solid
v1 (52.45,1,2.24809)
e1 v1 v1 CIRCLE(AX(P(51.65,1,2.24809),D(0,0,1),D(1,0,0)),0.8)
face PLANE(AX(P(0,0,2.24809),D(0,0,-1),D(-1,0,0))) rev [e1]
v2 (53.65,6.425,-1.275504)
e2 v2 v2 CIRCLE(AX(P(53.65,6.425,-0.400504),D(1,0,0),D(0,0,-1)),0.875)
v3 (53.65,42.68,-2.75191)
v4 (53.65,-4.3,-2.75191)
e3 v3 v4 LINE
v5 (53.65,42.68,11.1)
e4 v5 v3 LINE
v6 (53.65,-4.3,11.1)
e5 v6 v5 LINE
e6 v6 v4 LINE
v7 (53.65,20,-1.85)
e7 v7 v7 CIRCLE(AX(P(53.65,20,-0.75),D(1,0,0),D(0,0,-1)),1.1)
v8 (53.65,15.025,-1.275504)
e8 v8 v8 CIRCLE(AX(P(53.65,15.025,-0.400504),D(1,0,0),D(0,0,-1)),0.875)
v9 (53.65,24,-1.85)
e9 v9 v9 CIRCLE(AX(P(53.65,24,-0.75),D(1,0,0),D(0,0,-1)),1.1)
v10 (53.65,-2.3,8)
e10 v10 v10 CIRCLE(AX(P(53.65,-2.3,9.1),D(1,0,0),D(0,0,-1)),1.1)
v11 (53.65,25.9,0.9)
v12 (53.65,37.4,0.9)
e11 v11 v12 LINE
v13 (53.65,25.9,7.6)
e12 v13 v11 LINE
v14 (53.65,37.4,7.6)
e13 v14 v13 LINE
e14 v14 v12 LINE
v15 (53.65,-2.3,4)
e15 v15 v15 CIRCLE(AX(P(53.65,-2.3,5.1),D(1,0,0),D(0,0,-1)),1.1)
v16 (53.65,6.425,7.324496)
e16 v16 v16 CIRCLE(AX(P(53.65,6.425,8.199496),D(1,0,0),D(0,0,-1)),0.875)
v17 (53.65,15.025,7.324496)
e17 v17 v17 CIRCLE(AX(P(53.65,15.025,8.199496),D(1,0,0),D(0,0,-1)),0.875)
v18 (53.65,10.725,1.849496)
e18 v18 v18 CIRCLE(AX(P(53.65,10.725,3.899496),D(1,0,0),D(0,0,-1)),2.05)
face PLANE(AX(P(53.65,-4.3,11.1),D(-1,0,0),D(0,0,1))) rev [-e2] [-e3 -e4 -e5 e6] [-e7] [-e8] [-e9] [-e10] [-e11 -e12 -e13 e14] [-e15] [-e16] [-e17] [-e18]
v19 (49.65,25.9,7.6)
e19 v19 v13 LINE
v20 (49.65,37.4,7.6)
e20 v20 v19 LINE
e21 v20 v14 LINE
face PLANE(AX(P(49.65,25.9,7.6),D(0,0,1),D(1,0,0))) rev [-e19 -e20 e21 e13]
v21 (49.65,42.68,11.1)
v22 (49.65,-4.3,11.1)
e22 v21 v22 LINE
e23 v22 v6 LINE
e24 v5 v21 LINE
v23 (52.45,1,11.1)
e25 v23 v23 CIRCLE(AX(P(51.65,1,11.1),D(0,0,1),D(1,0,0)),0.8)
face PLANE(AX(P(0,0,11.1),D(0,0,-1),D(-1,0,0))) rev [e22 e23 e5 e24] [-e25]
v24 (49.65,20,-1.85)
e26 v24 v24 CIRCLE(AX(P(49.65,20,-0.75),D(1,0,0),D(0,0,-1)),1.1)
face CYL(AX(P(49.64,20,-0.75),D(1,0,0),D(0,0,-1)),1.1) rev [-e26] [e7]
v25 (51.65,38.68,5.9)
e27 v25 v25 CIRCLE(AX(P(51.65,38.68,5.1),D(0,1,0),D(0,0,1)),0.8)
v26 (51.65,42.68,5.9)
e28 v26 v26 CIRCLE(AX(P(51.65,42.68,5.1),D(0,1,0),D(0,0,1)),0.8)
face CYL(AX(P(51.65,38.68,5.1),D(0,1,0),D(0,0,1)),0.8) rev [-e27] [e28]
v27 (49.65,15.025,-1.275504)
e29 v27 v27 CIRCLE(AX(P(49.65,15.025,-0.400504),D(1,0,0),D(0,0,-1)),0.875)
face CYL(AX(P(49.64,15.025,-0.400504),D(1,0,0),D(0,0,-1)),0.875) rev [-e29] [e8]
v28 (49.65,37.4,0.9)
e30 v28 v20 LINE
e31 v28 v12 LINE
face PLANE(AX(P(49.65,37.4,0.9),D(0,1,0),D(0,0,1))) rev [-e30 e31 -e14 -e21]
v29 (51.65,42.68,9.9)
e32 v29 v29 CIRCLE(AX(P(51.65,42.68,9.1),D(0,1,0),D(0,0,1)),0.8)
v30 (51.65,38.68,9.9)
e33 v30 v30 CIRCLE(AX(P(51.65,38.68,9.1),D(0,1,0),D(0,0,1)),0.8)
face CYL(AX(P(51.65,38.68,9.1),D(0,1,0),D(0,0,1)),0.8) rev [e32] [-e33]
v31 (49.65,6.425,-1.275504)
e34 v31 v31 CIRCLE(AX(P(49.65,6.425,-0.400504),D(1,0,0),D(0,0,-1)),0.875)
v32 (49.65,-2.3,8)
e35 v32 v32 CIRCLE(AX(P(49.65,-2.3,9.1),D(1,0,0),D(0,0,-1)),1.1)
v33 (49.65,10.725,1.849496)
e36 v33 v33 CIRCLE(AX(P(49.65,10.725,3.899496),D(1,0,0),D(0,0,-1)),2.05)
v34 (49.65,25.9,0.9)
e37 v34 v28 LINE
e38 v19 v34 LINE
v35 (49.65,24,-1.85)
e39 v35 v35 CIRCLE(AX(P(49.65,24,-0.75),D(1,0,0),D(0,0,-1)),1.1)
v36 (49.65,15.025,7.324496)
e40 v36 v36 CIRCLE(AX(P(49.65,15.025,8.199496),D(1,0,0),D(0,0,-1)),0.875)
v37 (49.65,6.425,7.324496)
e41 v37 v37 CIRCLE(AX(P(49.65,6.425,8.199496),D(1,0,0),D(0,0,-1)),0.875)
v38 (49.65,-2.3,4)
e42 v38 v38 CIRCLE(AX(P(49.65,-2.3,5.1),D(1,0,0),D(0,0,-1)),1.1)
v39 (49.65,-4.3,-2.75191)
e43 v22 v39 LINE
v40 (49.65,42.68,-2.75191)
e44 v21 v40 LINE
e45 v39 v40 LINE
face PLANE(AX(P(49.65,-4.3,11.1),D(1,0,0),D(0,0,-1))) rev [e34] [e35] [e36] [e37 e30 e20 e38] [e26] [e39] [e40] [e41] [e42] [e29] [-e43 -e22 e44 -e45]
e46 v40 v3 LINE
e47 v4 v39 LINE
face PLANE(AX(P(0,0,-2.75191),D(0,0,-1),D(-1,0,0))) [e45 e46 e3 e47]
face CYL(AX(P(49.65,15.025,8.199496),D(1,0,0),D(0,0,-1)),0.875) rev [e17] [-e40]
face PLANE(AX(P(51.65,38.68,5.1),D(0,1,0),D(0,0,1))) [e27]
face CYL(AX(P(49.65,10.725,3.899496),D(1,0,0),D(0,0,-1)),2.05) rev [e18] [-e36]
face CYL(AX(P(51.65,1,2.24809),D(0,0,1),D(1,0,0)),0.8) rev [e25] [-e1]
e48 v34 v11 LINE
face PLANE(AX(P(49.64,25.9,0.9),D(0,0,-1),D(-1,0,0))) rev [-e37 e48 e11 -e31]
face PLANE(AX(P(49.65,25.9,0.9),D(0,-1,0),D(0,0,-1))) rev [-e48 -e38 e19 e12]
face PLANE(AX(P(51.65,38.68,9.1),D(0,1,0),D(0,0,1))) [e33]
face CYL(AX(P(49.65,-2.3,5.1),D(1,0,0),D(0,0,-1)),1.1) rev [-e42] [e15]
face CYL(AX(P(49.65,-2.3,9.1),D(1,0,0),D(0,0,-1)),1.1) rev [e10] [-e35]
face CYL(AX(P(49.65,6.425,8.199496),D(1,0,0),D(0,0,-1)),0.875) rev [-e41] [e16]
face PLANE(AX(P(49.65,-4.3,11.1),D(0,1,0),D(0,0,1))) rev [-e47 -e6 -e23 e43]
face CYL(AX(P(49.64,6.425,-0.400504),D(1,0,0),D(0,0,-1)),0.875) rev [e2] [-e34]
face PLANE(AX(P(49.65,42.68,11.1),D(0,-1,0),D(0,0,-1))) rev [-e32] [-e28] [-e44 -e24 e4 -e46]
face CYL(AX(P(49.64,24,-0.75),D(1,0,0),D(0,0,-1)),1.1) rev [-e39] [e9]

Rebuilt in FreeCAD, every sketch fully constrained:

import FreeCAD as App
import Part
import Sketcher


def add_polygon(sketch, points):
    """Adds a closed chain of lines whose ends are joined by coincident constraints."""
    first, n = sketch.GeometryCount, len(points)
    for a, b in zip(points, points[1:] + points[:1]):
        sketch.addGeometry(Part.LineSegment(App.Vector(*a, 0), App.Vector(*b, 0)), False)
    for i in range(n):
        sketch.addConstraint(Sketcher.Constraint("Coincident", first + i, 2, first + (i + 1) % n, 1))

doc = App.newDocument("Part")
body = doc.addObject("PartDesign::Body", "Body")

sketch1 = doc.addObject("Sketcher::SketchObject", "Sketch")
body.addObject(sketch1)
sketch1.AttachmentSupport = (doc.XY_Plane, [""])
sketch1.MapMode = "FlatFace"
sketch1.AttachmentOffset = App.Placement(App.Vector(0, 0, 2.24809), App.Rotation())
add_polygon(sketch1, [(49.6, 42.7), (49.6, -4.3), (53.6, -4.3), (53.6, 42.7)])
sketch1.addConstraint(Sketcher.Constraint("Vertical", 0))
sketch1.addConstraint(Sketcher.Constraint("Horizontal", 1))
sketch1.addConstraint(Sketcher.Constraint("Vertical", 2))
sketch1.addConstraint(Sketcher.Constraint("Horizontal", 3))
sketch1.addConstraint(Sketcher.Constraint("DistanceX", 1, 1, 1, 2, 4.0))
sketch1.addConstraint(Sketcher.Constraint("DistanceY", 0, 2, 0, 1, 46.98))
sketch1.addConstraint(Sketcher.Constraint("DistanceY", 0, 2, -1, 1, 4.3))
sketch1.addConstraint(Sketcher.Constraint("DistanceX", -1, 1, 0, 2, 49.65))
pad1 = doc.addObject("PartDesign::Pad", "Pad")
body.addObject(pad1)
pad1.Profile = sketch1
pad1.Length = 8.85191

sketch2 = doc.addObject("Sketcher::SketchObject", "Sketch001")
body.addObject(sketch2)
sketch2.AttachmentSupport = (doc.XY_Plane, [""])
sketch2.MapMode = "FlatFace"
sketch2.AttachmentOffset = App.Placement(App.Vector(0, 0, 11.1), App.Rotation())
sketch2.addGeometry(Part.Circle(App.Vector(51.6, 1, 0), App.Vector(0, 0, 1), 0.8), False)
sketch2.addConstraint(Sketcher.Constraint("Diameter", 0, 1.6))
sketch2.addConstraint(Sketcher.Constraint("DistanceY", -1, 1, 0, 3, 1.0))
sketch2.addConstraint(Sketcher.Constraint("DistanceX", -1, 1, 0, 3, 51.65))
pocket1 = doc.addObject("PartDesign::Pocket", "Pocket")
body.addObject(pocket1)
pocket1.Profile = sketch2
pocket1.Type = "ThroughAll"

sketch3 = doc.addObject("Sketcher::SketchObject", "Sketch002")
body.addObject(sketch3)
sketch3.AttachmentSupport = (doc.YZ_Plane, [""])
sketch3.MapMode = "FlatFace"
sketch3.AttachmentOffset = App.Placement(App.Vector(0, 0, 53.65), App.Rotation())
sketch3.addGeometry(Part.Circle(App.Vector(10.7, 3.9, 0), App.Vector(0, 0, 1), 2), False)
sketch3.addConstraint(Sketcher.Constraint("Diameter", 0, 4.1))
sketch3.addConstraint(Sketcher.Constraint("DistanceX", -1, 1, 0, 3, 10.725))
sketch3.addConstraint(Sketcher.Constraint("DistanceY", -1, 1, 0, 3, 3.899496))
pocket2 = doc.addObject("PartDesign::Pocket", "Pocket001")
body.addObject(pocket2)
pocket2.Profile = sketch3
pocket2.Length = 4

sketch4 = doc.addObject("Sketcher::SketchObject", "Sketch003")
body.addObject(sketch4)
sketch4.AttachmentSupport = (doc.YZ_Plane, [""])
sketch4.MapMode = "FlatFace"
sketch4.AttachmentOffset = App.Placement(App.Vector(0, 0, 53.65), App.Rotation())
sketch4.addGeometry(Part.Circle(App.Vector(6.4, 8.2, 0), App.Vector(0, 0, 1), 0.9), False)
sketch4.addGeometry(Part.Circle(App.Vector(15, 8.2, 0), App.Vector(0, 0, 1), 0.9), False)
sketch4.addConstraint(Sketcher.Constraint("Equal", 0, 1))
sketch4.addConstraint(Sketcher.Constraint("Horizontal", 0, 3, 1, 3))
sketch4.addConstraint(Sketcher.Constraint("Diameter", 0, 1.75))
sketch4.addConstraint(Sketcher.Constraint("DistanceX", 0, 3, 1, 3, 8.6))
sketch4.addConstraint(Sketcher.Constraint("DistanceX", -1, 1, 0, 3, 6.425))
sketch4.addConstraint(Sketcher.Constraint("DistanceY", -1, 1, 0, 3, 8.199496))
pocket3 = doc.addObject("PartDesign::Pocket", "Pocket002")
body.addObject(pocket3)
pocket3.Profile = sketch4
pocket3.Type = "ThroughAll"

sketch5 = doc.addObject("Sketcher::SketchObject", "Sketch004")
body.addObject(sketch5)
sketch5.AttachmentSupport = (doc.YZ_Plane, [""])
sketch5.MapMode = "FlatFace"
sketch5.AttachmentOffset = App.Placement(App.Vector(0, 0, 53.65), App.Rotation())
add_polygon(sketch5, [(37, 8), (26, 8), (26, 1), (37, 1)])
sketch5.addConstraint(Sketcher.Constraint("Horizontal", 0))
sketch5.addConstraint(Sketcher.Constraint("Vertical", 1))
sketch5.addConstraint(Sketcher.Constraint("Horizontal", 2))
sketch5.addConstraint(Sketcher.Constraint("Vertical", 3))
sketch5.addConstraint(Sketcher.Constraint("DistanceX", 0, 2, 0, 1, 11.5))
sketch5.addConstraint(Sketcher.Constraint("DistanceY", 1, 2, 1, 1, 6.7))
sketch5.addConstraint(Sketcher.Constraint("DistanceX", -1, 1, 0, 2, 25.9))
sketch5.addConstraint(Sketcher.Constraint("DistanceY", -1, 1, 0, 2, 7.6))
pocket4 = doc.addObject("PartDesign::Pocket", "Pocket003")
body.addObject(pocket4)
pocket4.Profile = sketch5
pocket4.Length = 4

sketch6 = doc.addObject("Sketcher::SketchObject", "Sketch005")
body.addObject(sketch6)
sketch6.AttachmentSupport = (doc.YZ_Plane, [""])
sketch6.MapMode = "FlatFace"
sketch6.AttachmentOffset = App.Placement(App.Vector(0, 0, 53.65), App.Rotation())
sketch6.addGeometry(Part.Circle(App.Vector(-2.3, 5.1, 0), App.Vector(0, 0, 1), 1.1), False)
sketch6.addGeometry(Part.Circle(App.Vector(-2.3, 9.1, 0), App.Vector(0, 0, 1), 1.1), False)
sketch6.addConstraint(Sketcher.Constraint("Equal", 0, 1))
sketch6.addConstraint(Sketcher.Constraint("Vertical", 0, 3, 1, 3))
sketch6.addConstraint(Sketcher.Constraint("Diameter", 0, 2.2))
sketch6.addConstraint(Sketcher.Constraint("DistanceY", 0, 3, 1, 3, 4.0))
sketch6.addConstraint(Sketcher.Constraint("DistanceX", 0, 3, -1, 1, 2.3))
sketch6.addConstraint(Sketcher.Constraint("DistanceY", -1, 1, 0, 3, 5.1))
pocket5 = doc.addObject("PartDesign::Pocket", "Pocket004")
body.addObject(pocket5)
pocket5.Profile = sketch6
pocket5.Type = "ThroughAll"

sketch7 = doc.addObject("Sketcher::SketchObject", "Sketch006")
body.addObject(sketch7)
sketch7.AttachmentSupport = (doc.XZ_Plane, [""])
sketch7.MapMode = "FlatFace"
sketch7.AttachmentOffset = App.Placement(App.Vector(0, 0, -42.68), App.Rotation())
sketch7.addGeometry(Part.Circle(App.Vector(51.6, 5.1, 0), App.Vector(0, 0, 1), 0.8), False)
sketch7.addGeometry(Part.Circle(App.Vector(51.6, 9.1, 0), App.Vector(0, 0, 1), 0.8), False)
sketch7.addConstraint(Sketcher.Constraint("Equal", 0, 1))
sketch7.addConstraint(Sketcher.Constraint("Vertical", 0, 3, 1, 3))
sketch7.addConstraint(Sketcher.Constraint("Diameter", 0, 1.6))
sketch7.addConstraint(Sketcher.Constraint("DistanceY", 0, 3, 1, 3, 4.0))
sketch7.addConstraint(Sketcher.Constraint("DistanceY", -1, 1, 0, 3, 5.1))
sketch7.addConstraint(Sketcher.Constraint("DistanceX", -1, 1, 0, 3, 51.65))
pocket6 = doc.addObject("PartDesign::Pocket", "Pocket005")
body.addObject(pocket6)
pocket6.Profile = sketch7
pocket6.Length = 4
pocket6.Reversed = True

sketch8 = doc.addObject("Sketcher::SketchObject", "Sketch007")
body.addObject(sketch8)
sketch8.AttachmentSupport = (doc.XY_Plane, [""])
sketch8.MapMode = "FlatFace"
sketch8.AttachmentOffset = App.Placement(App.Vector(0, 0, 2.24809), App.Rotation())
add_polygon(sketch8, [(53.6, 42.7), (53.6, -4.3), (49.6, -4.3), (49.6, 42.7)])
sketch8.addConstraint(Sketcher.Constraint("Vertical", 0))
sketch8.addConstraint(Sketcher.Constraint("Horizontal", 1))
sketch8.addConstraint(Sketcher.Constraint("Vertical", 2))
sketch8.addConstraint(Sketcher.Constraint("Horizontal", 3))
sketch8.addConstraint(Sketcher.Constraint("DistanceX", 1, 2, 1, 1, 4.0))
sketch8.addConstraint(Sketcher.Constraint("DistanceY", 0, 2, 0, 1, 46.98))
sketch8.addConstraint(Sketcher.Constraint("DistanceY", 0, 2, -1, 1, 4.3))
sketch8.addConstraint(Sketcher.Constraint("DistanceX", -1, 1, 0, 2, 53.65))
pad2 = doc.addObject("PartDesign::Pad", "Pad001")
body.addObject(pad2)
pad2.Profile = sketch8
pad2.Length = 5
pad2.Reversed = True

sketch9 = doc.addObject("Sketcher::SketchObject", "Sketch008")
body.addObject(sketch9)
sketch9.AttachmentSupport = (doc.YZ_Plane, [""])
sketch9.MapMode = "FlatFace"
sketch9.AttachmentOffset = App.Placement(App.Vector(0, 0, 53.65), App.Rotation())
sketch9.addGeometry(Part.Circle(App.Vector(10.7, 3.9, 0), App.Vector(0, 0, 1), 2), False)
sketch9.addConstraint(Sketcher.Constraint("Diameter", 0, 4.1))
sketch9.addConstraint(Sketcher.Constraint("DistanceX", -1, 1, 0, 3, 10.725))
sketch9.addConstraint(Sketcher.Constraint("DistanceY", -1, 1, 0, 3, 3.899496))
pocket7 = doc.addObject("PartDesign::Pocket", "Pocket006")
body.addObject(pocket7)
pocket7.Profile = sketch9
pocket7.Length = 4.01

sketch10 = doc.addObject("Sketcher::SketchObject", "Sketch009")
body.addObject(sketch10)
sketch10.AttachmentSupport = (doc.YZ_Plane, [""])
sketch10.MapMode = "FlatFace"
sketch10.AttachmentOffset = App.Placement(App.Vector(0, 0, 53.65), App.Rotation())
sketch10.addGeometry(Part.Circle(App.Vector(6.4, -0.4, 0), App.Vector(0, 0, 1), 0.9), False)
sketch10.addGeometry(Part.Circle(App.Vector(15, -0.4, 0), App.Vector(0, 0, 1), 0.9), False)
sketch10.addConstraint(Sketcher.Constraint("Equal", 0, 1))
sketch10.addConstraint(Sketcher.Constraint("Horizontal", 0, 3, 1, 3))
sketch10.addConstraint(Sketcher.Constraint("Diameter", 0, 1.75))
sketch10.addConstraint(Sketcher.Constraint("DistanceX", 0, 3, 1, 3, 8.6))
sketch10.addConstraint(Sketcher.Constraint("DistanceX", -1, 1, 0, 3, 6.425))
sketch10.addConstraint(Sketcher.Constraint("DistanceY", 0, 3, -1, 1, 0.400504))
pocket8 = doc.addObject("PartDesign::Pocket", "Pocket007")
body.addObject(pocket8)
pocket8.Profile = sketch10
pocket8.Length = 4.01

sketch11 = doc.addObject("Sketcher::SketchObject", "Sketch010")
body.addObject(sketch11)
sketch11.AttachmentSupport = (doc.YZ_Plane, [""])
sketch11.MapMode = "FlatFace"
sketch11.AttachmentOffset = App.Placement(App.Vector(0, 0, 53.65), App.Rotation())
add_polygon(sketch11, [(37, 8), (26, 8), (26, 1), (37, 1)])
sketch11.addConstraint(Sketcher.Constraint("Horizontal", 0))
sketch11.addConstraint(Sketcher.Constraint("Vertical", 1))
sketch11.addConstraint(Sketcher.Constraint("Horizontal", 2))
sketch11.addConstraint(Sketcher.Constraint("Vertical", 3))
sketch11.addConstraint(Sketcher.Constraint("DistanceX", 0, 2, 0, 1, 11.5))
sketch11.addConstraint(Sketcher.Constraint("DistanceY", 1, 2, 1, 1, 6.7))
sketch11.addConstraint(Sketcher.Constraint("DistanceX", -1, 1, 0, 2, 25.9))
sketch11.addConstraint(Sketcher.Constraint("DistanceY", -1, 1, 0, 2, 7.6))
pocket9 = doc.addObject("PartDesign::Pocket", "Pocket008")
body.addObject(pocket9)
pocket9.Profile = sketch11
pocket9.Length = 4.01

sketch12 = doc.addObject("Sketcher::SketchObject", "Sketch011")
body.addObject(sketch12)
sketch12.AttachmentSupport = (doc.YZ_Plane, [""])
sketch12.MapMode = "FlatFace"
sketch12.AttachmentOffset = App.Placement(App.Vector(0, 0, 53.65), App.Rotation())
sketch12.addGeometry(Part.Circle(App.Vector(20, -0.8, 0), App.Vector(0, 0, 1), 1.1), False)
sketch12.addGeometry(Part.Circle(App.Vector(24, -0.8, 0), App.Vector(0, 0, 1), 1.1), False)
sketch12.addConstraint(Sketcher.Constraint("Equal", 0, 1))
sketch12.addConstraint(Sketcher.Constraint("Horizontal", 0, 3, 1, 3))
sketch12.addConstraint(Sketcher.Constraint("Diameter", 0, 2.2))
sketch12.addConstraint(Sketcher.Constraint("DistanceX", -1, 1, 0, 3, 20.0))
sketch12.addConstraint(Sketcher.Constraint("DistanceX", -1, 1, 1, 3, 24.0))
sketch12.addConstraint(Sketcher.Constraint("DistanceY", 0, 3, -1, 1, 0.75))
pocket10 = doc.addObject("PartDesign::Pocket", "Pocket009")
body.addObject(pocket10)
pocket10.Profile = sketch12
pocket10.Length = 4.01

doc.recompute()
